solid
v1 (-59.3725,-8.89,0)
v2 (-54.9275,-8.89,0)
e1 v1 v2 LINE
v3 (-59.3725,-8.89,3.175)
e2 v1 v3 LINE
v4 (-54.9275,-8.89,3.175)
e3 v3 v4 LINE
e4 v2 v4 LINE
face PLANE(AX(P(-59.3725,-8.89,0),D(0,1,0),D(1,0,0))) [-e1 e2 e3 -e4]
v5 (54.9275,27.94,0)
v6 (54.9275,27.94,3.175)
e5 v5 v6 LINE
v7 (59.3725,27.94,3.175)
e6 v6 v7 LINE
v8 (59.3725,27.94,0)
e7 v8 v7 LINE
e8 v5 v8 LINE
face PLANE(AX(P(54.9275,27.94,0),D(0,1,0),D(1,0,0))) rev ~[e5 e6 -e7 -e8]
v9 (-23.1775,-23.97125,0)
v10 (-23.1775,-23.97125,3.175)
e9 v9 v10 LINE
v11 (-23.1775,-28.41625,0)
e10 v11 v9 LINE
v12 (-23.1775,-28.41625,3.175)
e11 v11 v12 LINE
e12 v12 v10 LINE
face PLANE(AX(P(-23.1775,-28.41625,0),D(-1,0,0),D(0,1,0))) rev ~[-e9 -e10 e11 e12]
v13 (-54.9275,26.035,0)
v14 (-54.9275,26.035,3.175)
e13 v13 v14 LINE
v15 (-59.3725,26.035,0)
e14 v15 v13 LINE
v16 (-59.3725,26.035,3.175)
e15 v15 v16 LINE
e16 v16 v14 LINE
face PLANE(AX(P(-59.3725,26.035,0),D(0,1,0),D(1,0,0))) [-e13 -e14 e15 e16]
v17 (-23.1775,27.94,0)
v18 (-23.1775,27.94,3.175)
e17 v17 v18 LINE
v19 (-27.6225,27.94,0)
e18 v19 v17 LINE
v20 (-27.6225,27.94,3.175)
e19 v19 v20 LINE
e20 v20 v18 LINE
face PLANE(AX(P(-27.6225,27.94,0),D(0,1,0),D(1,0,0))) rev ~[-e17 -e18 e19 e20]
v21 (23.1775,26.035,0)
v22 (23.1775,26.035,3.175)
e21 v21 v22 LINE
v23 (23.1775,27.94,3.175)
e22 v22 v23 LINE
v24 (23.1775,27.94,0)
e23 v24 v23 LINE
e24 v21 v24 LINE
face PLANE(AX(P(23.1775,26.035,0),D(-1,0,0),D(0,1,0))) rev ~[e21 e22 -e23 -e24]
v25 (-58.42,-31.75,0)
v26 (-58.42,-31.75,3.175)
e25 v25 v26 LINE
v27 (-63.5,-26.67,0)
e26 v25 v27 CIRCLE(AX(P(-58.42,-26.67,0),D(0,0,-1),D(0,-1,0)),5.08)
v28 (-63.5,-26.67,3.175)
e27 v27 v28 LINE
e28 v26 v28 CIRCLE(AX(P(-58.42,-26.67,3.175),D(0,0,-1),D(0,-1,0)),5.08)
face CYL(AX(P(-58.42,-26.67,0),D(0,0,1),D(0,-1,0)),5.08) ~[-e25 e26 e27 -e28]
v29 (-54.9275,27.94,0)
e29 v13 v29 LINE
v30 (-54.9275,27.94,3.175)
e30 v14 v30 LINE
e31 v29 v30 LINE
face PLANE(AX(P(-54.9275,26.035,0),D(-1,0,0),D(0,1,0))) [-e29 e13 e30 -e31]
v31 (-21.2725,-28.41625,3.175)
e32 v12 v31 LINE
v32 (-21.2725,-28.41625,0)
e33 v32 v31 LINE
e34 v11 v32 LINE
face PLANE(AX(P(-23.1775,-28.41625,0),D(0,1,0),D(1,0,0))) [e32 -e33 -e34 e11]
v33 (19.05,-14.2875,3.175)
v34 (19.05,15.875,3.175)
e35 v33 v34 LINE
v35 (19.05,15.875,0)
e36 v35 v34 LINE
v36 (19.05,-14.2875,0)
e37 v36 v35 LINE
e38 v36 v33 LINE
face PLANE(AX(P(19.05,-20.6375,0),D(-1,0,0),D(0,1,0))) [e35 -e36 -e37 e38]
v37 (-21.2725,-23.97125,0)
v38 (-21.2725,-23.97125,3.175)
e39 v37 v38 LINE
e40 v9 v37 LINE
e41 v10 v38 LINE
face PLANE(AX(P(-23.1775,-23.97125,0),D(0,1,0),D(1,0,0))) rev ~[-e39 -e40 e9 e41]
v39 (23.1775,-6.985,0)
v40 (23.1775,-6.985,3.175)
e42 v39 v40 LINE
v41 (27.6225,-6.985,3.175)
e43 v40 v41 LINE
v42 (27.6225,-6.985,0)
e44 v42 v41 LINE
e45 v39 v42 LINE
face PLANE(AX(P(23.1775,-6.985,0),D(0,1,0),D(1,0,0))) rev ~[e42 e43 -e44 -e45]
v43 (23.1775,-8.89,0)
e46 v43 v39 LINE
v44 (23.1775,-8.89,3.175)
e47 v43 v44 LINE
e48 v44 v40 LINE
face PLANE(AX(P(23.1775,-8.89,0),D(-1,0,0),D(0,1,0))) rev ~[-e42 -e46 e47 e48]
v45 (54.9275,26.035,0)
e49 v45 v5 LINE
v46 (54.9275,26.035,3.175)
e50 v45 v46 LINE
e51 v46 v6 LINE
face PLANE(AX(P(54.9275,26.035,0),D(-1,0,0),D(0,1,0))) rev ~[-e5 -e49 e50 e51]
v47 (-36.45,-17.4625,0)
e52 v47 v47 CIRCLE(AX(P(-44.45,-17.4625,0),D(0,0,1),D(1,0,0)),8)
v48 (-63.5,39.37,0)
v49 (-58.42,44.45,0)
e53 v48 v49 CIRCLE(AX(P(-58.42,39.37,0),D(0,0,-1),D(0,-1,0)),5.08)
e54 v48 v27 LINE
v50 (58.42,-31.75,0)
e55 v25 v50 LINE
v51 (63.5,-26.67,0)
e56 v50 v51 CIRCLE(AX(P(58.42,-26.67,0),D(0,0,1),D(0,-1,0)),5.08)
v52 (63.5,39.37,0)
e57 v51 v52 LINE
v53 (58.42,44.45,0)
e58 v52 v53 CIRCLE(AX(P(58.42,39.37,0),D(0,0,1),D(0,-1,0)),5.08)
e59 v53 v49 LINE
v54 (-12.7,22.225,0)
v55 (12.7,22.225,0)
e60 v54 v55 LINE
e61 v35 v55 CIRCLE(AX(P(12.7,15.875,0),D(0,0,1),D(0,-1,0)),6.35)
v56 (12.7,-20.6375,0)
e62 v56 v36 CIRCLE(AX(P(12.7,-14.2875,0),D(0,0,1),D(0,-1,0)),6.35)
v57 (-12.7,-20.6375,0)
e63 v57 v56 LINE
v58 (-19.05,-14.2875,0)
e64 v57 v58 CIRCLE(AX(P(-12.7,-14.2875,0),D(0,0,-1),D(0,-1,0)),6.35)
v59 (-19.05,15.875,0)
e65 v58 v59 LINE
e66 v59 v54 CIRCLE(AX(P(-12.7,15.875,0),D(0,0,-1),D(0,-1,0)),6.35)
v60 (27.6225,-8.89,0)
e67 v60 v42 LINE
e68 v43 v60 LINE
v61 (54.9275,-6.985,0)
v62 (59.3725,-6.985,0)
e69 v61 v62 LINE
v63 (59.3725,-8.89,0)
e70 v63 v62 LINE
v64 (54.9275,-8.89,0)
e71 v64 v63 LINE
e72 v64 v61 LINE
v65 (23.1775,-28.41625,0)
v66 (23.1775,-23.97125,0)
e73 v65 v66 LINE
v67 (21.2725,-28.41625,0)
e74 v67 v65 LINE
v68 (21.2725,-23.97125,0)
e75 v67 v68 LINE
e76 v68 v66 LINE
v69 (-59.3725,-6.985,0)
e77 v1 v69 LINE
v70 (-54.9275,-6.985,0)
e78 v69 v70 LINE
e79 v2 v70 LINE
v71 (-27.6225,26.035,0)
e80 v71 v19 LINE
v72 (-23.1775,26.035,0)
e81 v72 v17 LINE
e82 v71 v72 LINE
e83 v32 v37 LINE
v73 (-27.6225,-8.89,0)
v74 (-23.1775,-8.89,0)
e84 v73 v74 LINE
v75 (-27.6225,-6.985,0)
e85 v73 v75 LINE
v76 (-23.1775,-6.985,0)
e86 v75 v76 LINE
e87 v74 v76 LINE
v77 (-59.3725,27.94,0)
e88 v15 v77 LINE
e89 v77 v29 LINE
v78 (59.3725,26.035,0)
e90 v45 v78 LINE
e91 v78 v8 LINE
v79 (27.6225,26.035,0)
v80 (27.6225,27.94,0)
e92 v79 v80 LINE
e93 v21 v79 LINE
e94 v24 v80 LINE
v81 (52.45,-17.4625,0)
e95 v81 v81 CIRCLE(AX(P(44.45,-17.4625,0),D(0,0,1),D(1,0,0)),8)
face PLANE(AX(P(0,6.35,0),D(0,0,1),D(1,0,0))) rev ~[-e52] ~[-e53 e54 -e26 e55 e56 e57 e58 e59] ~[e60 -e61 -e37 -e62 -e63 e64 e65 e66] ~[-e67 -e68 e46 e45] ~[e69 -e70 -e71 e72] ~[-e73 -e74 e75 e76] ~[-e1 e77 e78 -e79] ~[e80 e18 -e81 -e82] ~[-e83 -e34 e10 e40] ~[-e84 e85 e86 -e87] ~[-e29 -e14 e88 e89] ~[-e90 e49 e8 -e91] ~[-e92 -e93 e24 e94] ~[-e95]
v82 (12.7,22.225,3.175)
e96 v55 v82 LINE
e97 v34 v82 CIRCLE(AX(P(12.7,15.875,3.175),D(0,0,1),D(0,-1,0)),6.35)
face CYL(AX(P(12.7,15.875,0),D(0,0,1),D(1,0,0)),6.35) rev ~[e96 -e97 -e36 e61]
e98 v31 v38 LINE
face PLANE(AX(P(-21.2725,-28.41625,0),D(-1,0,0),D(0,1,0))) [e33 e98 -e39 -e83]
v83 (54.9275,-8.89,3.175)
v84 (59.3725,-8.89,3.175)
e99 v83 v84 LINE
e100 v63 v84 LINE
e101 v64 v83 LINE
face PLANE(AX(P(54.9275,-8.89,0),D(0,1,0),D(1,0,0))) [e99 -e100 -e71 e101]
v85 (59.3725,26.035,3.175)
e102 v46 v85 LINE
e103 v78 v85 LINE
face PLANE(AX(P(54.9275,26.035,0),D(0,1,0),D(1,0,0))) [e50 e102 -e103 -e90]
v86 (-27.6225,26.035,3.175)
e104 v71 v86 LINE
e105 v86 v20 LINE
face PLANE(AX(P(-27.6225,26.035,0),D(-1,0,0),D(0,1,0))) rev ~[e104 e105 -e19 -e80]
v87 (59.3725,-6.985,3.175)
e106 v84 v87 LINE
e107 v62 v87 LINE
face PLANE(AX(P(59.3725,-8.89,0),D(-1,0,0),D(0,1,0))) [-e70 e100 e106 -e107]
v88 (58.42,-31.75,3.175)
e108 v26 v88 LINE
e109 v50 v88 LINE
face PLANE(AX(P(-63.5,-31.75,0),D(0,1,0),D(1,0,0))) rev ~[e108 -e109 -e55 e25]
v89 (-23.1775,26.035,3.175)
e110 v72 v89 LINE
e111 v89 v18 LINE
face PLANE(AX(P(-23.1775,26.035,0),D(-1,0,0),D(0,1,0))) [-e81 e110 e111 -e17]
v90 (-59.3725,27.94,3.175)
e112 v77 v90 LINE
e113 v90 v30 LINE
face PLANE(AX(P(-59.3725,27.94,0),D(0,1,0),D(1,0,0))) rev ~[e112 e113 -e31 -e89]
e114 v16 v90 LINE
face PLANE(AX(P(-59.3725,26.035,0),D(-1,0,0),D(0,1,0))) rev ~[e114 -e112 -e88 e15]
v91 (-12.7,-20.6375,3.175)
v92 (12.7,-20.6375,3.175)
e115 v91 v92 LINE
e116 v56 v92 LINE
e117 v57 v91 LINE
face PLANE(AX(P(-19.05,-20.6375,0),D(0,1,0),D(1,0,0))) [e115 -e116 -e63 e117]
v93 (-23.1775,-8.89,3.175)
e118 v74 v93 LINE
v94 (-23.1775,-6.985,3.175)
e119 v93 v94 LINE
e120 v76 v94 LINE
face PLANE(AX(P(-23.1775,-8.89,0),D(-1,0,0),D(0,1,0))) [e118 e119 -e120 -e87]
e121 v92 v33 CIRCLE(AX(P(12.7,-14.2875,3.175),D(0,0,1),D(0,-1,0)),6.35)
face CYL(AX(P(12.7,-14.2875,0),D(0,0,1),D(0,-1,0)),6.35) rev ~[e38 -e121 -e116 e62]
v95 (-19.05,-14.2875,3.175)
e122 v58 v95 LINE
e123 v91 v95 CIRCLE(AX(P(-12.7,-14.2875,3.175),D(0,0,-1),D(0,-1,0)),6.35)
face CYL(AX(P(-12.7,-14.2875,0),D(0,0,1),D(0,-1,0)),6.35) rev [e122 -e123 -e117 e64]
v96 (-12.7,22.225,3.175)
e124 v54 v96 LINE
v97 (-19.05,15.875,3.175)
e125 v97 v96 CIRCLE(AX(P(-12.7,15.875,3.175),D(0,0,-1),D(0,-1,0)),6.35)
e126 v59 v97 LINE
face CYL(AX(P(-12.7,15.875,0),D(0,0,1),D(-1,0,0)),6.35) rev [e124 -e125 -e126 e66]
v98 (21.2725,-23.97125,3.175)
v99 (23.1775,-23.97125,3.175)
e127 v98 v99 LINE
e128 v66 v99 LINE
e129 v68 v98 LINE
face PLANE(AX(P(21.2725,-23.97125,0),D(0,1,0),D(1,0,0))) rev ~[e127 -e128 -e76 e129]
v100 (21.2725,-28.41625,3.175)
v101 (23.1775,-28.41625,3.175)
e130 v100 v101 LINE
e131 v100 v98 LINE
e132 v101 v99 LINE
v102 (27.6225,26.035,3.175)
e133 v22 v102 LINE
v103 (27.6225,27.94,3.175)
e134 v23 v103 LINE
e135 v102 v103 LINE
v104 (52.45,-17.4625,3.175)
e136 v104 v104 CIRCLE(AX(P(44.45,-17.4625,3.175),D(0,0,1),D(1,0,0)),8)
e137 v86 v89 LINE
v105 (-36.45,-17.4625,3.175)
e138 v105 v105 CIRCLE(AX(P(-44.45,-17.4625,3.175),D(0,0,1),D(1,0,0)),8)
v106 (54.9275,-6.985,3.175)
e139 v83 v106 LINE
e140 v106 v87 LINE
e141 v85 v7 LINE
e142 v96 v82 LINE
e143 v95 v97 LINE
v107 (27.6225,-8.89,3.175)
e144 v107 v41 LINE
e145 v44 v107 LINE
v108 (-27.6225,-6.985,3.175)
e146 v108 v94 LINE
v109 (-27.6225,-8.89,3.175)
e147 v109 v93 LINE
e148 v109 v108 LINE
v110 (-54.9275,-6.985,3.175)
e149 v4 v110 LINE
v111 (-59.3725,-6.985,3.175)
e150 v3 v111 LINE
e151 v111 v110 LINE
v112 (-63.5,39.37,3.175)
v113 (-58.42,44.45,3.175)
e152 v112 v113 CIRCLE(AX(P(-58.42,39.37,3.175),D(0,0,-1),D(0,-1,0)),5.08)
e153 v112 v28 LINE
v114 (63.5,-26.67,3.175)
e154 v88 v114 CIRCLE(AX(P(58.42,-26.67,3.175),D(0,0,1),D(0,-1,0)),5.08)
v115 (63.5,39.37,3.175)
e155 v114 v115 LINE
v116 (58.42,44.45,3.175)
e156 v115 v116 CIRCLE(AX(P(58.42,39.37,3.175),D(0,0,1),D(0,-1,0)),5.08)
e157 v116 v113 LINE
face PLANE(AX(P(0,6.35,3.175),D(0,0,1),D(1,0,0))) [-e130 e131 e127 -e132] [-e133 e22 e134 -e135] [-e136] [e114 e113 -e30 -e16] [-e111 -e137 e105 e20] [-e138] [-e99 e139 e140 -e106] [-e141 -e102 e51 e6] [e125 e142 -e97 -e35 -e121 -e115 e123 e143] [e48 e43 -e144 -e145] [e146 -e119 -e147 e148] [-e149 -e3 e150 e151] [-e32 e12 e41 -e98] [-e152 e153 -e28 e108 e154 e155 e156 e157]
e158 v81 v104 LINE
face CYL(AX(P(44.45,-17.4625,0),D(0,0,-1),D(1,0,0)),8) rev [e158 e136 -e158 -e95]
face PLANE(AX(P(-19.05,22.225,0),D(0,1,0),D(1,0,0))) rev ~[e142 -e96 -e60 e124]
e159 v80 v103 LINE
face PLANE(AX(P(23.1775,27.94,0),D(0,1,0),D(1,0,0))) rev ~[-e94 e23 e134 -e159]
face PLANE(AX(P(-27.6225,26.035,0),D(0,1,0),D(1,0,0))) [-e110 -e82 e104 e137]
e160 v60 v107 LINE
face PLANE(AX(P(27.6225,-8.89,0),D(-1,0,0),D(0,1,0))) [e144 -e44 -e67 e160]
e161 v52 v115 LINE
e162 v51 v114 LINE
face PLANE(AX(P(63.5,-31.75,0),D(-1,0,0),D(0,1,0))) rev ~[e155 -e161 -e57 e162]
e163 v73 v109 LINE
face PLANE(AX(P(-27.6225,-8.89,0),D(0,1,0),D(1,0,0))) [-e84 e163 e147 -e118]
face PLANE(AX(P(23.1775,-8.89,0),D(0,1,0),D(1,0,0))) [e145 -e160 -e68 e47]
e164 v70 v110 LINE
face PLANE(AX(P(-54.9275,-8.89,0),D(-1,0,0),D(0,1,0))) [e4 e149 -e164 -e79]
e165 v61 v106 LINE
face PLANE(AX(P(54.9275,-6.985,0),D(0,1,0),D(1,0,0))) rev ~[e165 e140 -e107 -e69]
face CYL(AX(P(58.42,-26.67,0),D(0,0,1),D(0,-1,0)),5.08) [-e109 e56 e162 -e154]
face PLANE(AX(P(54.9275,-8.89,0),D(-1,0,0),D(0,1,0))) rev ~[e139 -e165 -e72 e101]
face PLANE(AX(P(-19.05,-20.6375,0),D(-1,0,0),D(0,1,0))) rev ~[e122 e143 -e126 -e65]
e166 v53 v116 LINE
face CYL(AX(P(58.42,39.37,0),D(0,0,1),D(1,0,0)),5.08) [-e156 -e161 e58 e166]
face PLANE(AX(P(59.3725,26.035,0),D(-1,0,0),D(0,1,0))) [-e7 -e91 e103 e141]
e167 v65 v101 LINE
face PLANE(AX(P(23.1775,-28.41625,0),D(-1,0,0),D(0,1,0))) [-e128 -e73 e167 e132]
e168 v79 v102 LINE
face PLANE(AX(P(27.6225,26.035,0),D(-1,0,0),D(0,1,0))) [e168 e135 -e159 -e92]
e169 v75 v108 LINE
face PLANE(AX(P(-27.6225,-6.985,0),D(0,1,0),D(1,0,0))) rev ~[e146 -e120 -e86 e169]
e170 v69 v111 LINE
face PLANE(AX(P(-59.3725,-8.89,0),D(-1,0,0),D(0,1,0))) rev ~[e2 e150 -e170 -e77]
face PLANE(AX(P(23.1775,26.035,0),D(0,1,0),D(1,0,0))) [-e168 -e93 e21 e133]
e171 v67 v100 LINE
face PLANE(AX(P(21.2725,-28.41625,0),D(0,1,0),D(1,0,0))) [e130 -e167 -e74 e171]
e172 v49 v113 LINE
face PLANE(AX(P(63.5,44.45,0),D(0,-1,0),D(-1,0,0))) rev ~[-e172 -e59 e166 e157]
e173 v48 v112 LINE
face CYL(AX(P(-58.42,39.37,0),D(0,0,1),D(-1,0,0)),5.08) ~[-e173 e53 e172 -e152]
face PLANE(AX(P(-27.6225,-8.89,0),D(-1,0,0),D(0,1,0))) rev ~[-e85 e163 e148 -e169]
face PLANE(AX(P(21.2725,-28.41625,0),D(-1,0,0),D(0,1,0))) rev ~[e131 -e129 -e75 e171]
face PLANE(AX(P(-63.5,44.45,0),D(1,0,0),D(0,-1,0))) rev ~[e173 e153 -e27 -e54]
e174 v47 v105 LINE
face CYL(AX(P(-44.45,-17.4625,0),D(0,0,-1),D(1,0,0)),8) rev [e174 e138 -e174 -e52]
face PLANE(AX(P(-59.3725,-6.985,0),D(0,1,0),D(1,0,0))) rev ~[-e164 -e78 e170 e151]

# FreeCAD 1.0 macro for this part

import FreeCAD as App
import Part
import Sketcher

V = App.Vector
Q = App.Units.Quantity


def edges_at(feature, points):
    """Names of the edges that pass closest to the given points."""
    edges = feature.Shape.Edges
    near = lambda p: min(range(len(edges)), key=lambda i: edges[i].distToShape(Part.Vertex(*p))[0])
    return sorted({f"Edge{near(p) + 1}" for p in points})


def add_polygon(sketch, points):
    """Adds a closed chain of lines whose ends are joined by coincident constraints."""
    first, n = sketch.GeometryCount, len(points)
    for a, b in zip(points, points[1:] + points[:1]):
        sketch.addGeometry(Part.LineSegment(App.Vector(*a, 0), App.Vector(*b, 0)), False)
    for i in range(n):
        sketch.addConstraint(Sketcher.Constraint("Coincident", first + i, 2, first + (i + 1) % n, 1))

doc = App.newDocument("Part")
params = doc.addObject("Spreadsheet::Sheet", "Params")
for row, (alias, value) in enumerate([
    ("sketch1_width", "5 in"),
    ("sketch1_height", "3 in"),
    ("sketch1_width2", "1.5 in"),
    ("sketch1_width3", "0.075 in"),
    ("sketch1_width4", "0.175 in"),
    ("pad1_length", "0.125 in"),
    ("fillet_radius", "0.25 in"),
    ("fillet2_radius", "0.2 in"),
], start=1):
    params.set(f"A{row}", alias)
    params.set(f"B{row}", "=" + value)
    params.setAlias(f"B{row}", alias)

body = doc.addObject("PartDesign::Body", "Body")

# Sketch on XY plane
sketch1 = body.newObject("Sketcher::SketchObject", "Sketch")
sketch1.AttachmentSupport = (doc.getObject("XY_Plane"), [""])
sketch1.MapMode = "FlatFace"
add_polygon(sketch1, [(-63.5, -31.8), (63.5, -31.8), (63.5, 44.5), (-63.5, 44.5)])  # lines 0-3
sketch1.addGeometry(Part.Circle(V(-44.5, -17.5, 0), V(0, 0, 1), 8), False)  # 4
add_polygon(sketch1, [(-21.3, -28.4), (-23.2, -28.4), (-23.2, -24), (-21.3, -24)])  # lines 5-8
add_polygon(sketch1, [(-54.9, -8.9), (-59.4, -8.9), (-59.4, -7), (-54.9, -7)])  # lines 9-12
add_polygon(sketch1, [(-23.2, -8.9), (-27.6, -8.9), (-27.6, -7), (-23.2, -7)])  # lines 13-16
add_polygon(sketch1, [(23.2, -28.4), (21.3, -28.4), (21.3, -24), (23.2, -24)])  # lines 17-20
sketch1.addGeometry(Part.Circle(V(44.5, -17.5, 0), V(0, 0, 1), 8), False)  # 21
add_polygon(sketch1, [(27.6, -8.9), (23.2, -8.9), (23.2, -7), (27.6, -7)])  # lines 22-25
add_polygon(sketch1, [(59.4, -8.9), (54.9, -8.9), (54.9, -7), (59.4, -7)])  # lines 26-29
add_polygon(sketch1, [(19.1, -20.6), (-19.1, -20.6), (-19.1, 22.2), (19.1, 22.2)])  # lines 30-33
add_polygon(sketch1, [(-54.9, 26), (-59.4, 26), (-59.4, 27.9), (-54.9, 27.9)])  # lines 34-37
add_polygon(sketch1, [(-23.2, 26), (-27.6, 26), (-27.6, 27.9), (-23.2, 27.9)])  # lines 38-41
add_polygon(sketch1, [(27.6, 26), (23.2, 26), (23.2, 27.9), (27.6, 27.9)])  # lines 42-45
add_polygon(sketch1, [(59.4, 26), (54.9, 26), (54.9, 27.9), (59.4, 27.9)])  # lines 46-49
sketch1.addConstraint([
    Sketcher.Constraint("Horizontal", 0),
    Sketcher.Constraint("Vertical", 1),
    Sketcher.Constraint("Horizontal", 2),
    Sketcher.Constraint("Vertical", 3),
    Sketcher.Constraint("Horizontal", 5),
    Sketcher.Constraint("Vertical", 6),
    Sketcher.Constraint("Horizontal", 7),
    Sketcher.Constraint("Vertical", 8),
    Sketcher.Constraint("Horizontal", 9),
    Sketcher.Constraint("Vertical", 10),
    Sketcher.Constraint("Horizontal", 11),
    Sketcher.Constraint("Vertical", 12),
    Sketcher.Constraint("Horizontal", 13),
    Sketcher.Constraint("Vertical", 14),
    Sketcher.Constraint("Horizontal", 15),
    Sketcher.Constraint("Vertical", 16),
    Sketcher.Constraint("Horizontal", 17),
    Sketcher.Constraint("Vertical", 18),
    Sketcher.Constraint("Horizontal", 19),
    Sketcher.Constraint("Vertical", 20),
    Sketcher.Constraint("Horizontal", 22),
    Sketcher.Constraint("Vertical", 23),
    Sketcher.Constraint("Horizontal", 24),
    Sketcher.Constraint("Vertical", 25),
    Sketcher.Constraint("Horizontal", 26),
    Sketcher.Constraint("Vertical", 27),
    Sketcher.Constraint("Horizontal", 28),
    Sketcher.Constraint("Vertical", 29),
    Sketcher.Constraint("Horizontal", 30),
    Sketcher.Constraint("Vertical", 31),
    Sketcher.Constraint("Horizontal", 32),
    Sketcher.Constraint("Vertical", 33),
    Sketcher.Constraint("Horizontal", 34),
    Sketcher.Constraint("Vertical", 35),
    Sketcher.Constraint("Horizontal", 36),
    Sketcher.Constraint("Vertical", 37),
    Sketcher.Constraint("Horizontal", 38),
    Sketcher.Constraint("Vertical", 39),
    Sketcher.Constraint("Horizontal", 40),
    Sketcher.Constraint("Vertical", 41),
    Sketcher.Constraint("Horizontal", 42),
    Sketcher.Constraint("Vertical", 43),
    Sketcher.Constraint("Horizontal", 44),
    Sketcher.Constraint("Vertical", 45),
    Sketcher.Constraint("Horizontal", 46),
    Sketcher.Constraint("Vertical", 47),
    Sketcher.Constraint("Horizontal", 48),
    Sketcher.Constraint("Vertical", 49),
    Sketcher.Constraint("Equal", 4, 21),
    Sketcher.Constraint("Symmetric", 4, 3, 21, 3, -2),
    Sketcher.Constraint("Symmetric", 8, 2, 17, 2, -2),
    Sketcher.Constraint("Symmetric", 6, 2, 19, 2, -2),
    Sketcher.Constraint("Symmetric", 16, 2, 22, 2, -2),
    Sketcher.Constraint("Symmetric", 14, 2, 24, 2, -2),
    Sketcher.Constraint("Symmetric", 12, 2, 26, 2, -2),
    Sketcher.Constraint("Symmetric", 10, 2, 28, 2, -2),
    Sketcher.Constraint("Symmetric", 41, 2, 42, 2, -2),
    Sketcher.Constraint("Symmetric", 39, 2, 44, 2, -2),
    Sketcher.Constraint("Symmetric", 37, 2, 46, 2, -2),
    Sketcher.Constraint("Symmetric", 35, 2, 48, 2, -2),
    Sketcher.Constraint("Horizontal", 12, 2, 13, 2),
    Sketcher.Constraint("Horizontal", 11, 2, 14, 2),
    Sketcher.Constraint("Horizontal", 37, 2, 38, 2),
    Sketcher.Constraint("Horizontal", 36, 2, 39, 2),
    Sketcher.Constraint("Vertical", 6, 2, 15, 2),
    Sketcher.Constraint("Vertical", 10, 2, 34, 2),
    Sketcher.Constraint("Vertical", 12, 2, 36, 2),
    Sketcher.Constraint("Vertical", 14, 2, 38, 2),
    Sketcher.Constraint("Vertical", 16, 2, 40, 2),
    Sketcher.Constraint("Equal", 11, 13),
    Sketcher.Constraint("Equal", 48, 6),
    Sketcher.Constraint("Equal", 19, 10),
    Sketcher.Constraint("Equal", 29, 35),
    Sketcher.Constraint("DistanceX", 0, 1, 0, 2, Q("5 in")),
    Sketcher.Constraint("DistanceY", 1, 1, 1, 2, Q("3 in")),
    Sketcher.Constraint("DistanceX", 30, 2, 30, 1, Q("1.5 in")),
    Sketcher.Constraint("DistanceX", -1, 1, 0, 2, Q("2.5 in")),
    Sketcher.Constraint("DistanceY", -1, 1, 35, 2, Q("1.1 in")),
    Sketcher.Constraint("DistanceX", 4, 3, 21, 3, Q("3.5 in")),
    Sketcher.Constraint("DistanceY", 3, 2, 9, 2, Q("0.9 in")),
    Sketcher.Constraint("DistanceX", 9, 2, 7, 2, Q("1.5 in")),
    Sketcher.Constraint("DistanceY", 10, 2, 34, 2, Q("1.3 in")),
    Sketcher.Constraint("Diameter", 4, Q("16 mm")),
    Sketcher.Constraint("DistanceX", 5, 2, 5, 1, Q("0.075 in")),
    Sketcher.Constraint("DistanceX", 9, 2, 9, 1, Q("0.175 in")),
    Sketcher.Constraint("DistanceY", 31, 1, 31, 2, Q("1.6875 in")),
    Sketcher.Constraint("DistanceX", 30, 2, -1, 1, Q("0.75 in")),
    Sketcher.Constraint("DistanceX", 5, 2, 17, 2, Q("1.75 in")),
    Sketcher.Constraint("DistanceY", 15, 2, 31, 2, Q("1.15 in")),
    Sketcher.Constraint("DistanceY", 4, 3, -1, 1, Q("0.6875 in")),
    Sketcher.Constraint("DistanceY", 6, 2, 9, 2, Q("0.59375 in")),
])
sketch1.setExpression("Constraints[121]", "Params.sketch1_width")
sketch1.setExpression("Constraints[122]", "Params.sketch1_height")
sketch1.setExpression("Constraints[123]", "Params.sketch1_width2")
sketch1.setExpression("Constraints[131]", "Params.sketch1_width3")
sketch1.setExpression("Constraints[132]", "Params.sketch1_width4")
pad1 = body.newObject("PartDesign::Pad", "Pad")
pad1.Profile = sketch1
pad1.setExpression("Length", "Params.pad1_length")
doc.recompute()

fillet = body.newObject("PartDesign::Fillet", "Fillet")
fillet.Base = (pad1, edges_at(pad1, [
    (-19.05, 22.225, 1.587),
    (19.05, 22.225, 1.587),
    (-19.05, -20.637, 1.587),
    (19.05, -20.637, 1.587),
]))
fillet.setExpression("Radius", "Params.fillet_radius")
doc.recompute()

fillet2 = body.newObject("PartDesign::Fillet", "Fillet001")
fillet2.Base = (fillet, edges_at(fillet, [
    (-63.5, 44.45, 1.587),
    (-63.5, -31.75, 1.587),
    (63.5, -31.75, 1.587),
    (63.5, 44.45, 1.587),
]))
fillet2.setExpression("Radius", "Params.fillet2_radius")

doc.recompute()
